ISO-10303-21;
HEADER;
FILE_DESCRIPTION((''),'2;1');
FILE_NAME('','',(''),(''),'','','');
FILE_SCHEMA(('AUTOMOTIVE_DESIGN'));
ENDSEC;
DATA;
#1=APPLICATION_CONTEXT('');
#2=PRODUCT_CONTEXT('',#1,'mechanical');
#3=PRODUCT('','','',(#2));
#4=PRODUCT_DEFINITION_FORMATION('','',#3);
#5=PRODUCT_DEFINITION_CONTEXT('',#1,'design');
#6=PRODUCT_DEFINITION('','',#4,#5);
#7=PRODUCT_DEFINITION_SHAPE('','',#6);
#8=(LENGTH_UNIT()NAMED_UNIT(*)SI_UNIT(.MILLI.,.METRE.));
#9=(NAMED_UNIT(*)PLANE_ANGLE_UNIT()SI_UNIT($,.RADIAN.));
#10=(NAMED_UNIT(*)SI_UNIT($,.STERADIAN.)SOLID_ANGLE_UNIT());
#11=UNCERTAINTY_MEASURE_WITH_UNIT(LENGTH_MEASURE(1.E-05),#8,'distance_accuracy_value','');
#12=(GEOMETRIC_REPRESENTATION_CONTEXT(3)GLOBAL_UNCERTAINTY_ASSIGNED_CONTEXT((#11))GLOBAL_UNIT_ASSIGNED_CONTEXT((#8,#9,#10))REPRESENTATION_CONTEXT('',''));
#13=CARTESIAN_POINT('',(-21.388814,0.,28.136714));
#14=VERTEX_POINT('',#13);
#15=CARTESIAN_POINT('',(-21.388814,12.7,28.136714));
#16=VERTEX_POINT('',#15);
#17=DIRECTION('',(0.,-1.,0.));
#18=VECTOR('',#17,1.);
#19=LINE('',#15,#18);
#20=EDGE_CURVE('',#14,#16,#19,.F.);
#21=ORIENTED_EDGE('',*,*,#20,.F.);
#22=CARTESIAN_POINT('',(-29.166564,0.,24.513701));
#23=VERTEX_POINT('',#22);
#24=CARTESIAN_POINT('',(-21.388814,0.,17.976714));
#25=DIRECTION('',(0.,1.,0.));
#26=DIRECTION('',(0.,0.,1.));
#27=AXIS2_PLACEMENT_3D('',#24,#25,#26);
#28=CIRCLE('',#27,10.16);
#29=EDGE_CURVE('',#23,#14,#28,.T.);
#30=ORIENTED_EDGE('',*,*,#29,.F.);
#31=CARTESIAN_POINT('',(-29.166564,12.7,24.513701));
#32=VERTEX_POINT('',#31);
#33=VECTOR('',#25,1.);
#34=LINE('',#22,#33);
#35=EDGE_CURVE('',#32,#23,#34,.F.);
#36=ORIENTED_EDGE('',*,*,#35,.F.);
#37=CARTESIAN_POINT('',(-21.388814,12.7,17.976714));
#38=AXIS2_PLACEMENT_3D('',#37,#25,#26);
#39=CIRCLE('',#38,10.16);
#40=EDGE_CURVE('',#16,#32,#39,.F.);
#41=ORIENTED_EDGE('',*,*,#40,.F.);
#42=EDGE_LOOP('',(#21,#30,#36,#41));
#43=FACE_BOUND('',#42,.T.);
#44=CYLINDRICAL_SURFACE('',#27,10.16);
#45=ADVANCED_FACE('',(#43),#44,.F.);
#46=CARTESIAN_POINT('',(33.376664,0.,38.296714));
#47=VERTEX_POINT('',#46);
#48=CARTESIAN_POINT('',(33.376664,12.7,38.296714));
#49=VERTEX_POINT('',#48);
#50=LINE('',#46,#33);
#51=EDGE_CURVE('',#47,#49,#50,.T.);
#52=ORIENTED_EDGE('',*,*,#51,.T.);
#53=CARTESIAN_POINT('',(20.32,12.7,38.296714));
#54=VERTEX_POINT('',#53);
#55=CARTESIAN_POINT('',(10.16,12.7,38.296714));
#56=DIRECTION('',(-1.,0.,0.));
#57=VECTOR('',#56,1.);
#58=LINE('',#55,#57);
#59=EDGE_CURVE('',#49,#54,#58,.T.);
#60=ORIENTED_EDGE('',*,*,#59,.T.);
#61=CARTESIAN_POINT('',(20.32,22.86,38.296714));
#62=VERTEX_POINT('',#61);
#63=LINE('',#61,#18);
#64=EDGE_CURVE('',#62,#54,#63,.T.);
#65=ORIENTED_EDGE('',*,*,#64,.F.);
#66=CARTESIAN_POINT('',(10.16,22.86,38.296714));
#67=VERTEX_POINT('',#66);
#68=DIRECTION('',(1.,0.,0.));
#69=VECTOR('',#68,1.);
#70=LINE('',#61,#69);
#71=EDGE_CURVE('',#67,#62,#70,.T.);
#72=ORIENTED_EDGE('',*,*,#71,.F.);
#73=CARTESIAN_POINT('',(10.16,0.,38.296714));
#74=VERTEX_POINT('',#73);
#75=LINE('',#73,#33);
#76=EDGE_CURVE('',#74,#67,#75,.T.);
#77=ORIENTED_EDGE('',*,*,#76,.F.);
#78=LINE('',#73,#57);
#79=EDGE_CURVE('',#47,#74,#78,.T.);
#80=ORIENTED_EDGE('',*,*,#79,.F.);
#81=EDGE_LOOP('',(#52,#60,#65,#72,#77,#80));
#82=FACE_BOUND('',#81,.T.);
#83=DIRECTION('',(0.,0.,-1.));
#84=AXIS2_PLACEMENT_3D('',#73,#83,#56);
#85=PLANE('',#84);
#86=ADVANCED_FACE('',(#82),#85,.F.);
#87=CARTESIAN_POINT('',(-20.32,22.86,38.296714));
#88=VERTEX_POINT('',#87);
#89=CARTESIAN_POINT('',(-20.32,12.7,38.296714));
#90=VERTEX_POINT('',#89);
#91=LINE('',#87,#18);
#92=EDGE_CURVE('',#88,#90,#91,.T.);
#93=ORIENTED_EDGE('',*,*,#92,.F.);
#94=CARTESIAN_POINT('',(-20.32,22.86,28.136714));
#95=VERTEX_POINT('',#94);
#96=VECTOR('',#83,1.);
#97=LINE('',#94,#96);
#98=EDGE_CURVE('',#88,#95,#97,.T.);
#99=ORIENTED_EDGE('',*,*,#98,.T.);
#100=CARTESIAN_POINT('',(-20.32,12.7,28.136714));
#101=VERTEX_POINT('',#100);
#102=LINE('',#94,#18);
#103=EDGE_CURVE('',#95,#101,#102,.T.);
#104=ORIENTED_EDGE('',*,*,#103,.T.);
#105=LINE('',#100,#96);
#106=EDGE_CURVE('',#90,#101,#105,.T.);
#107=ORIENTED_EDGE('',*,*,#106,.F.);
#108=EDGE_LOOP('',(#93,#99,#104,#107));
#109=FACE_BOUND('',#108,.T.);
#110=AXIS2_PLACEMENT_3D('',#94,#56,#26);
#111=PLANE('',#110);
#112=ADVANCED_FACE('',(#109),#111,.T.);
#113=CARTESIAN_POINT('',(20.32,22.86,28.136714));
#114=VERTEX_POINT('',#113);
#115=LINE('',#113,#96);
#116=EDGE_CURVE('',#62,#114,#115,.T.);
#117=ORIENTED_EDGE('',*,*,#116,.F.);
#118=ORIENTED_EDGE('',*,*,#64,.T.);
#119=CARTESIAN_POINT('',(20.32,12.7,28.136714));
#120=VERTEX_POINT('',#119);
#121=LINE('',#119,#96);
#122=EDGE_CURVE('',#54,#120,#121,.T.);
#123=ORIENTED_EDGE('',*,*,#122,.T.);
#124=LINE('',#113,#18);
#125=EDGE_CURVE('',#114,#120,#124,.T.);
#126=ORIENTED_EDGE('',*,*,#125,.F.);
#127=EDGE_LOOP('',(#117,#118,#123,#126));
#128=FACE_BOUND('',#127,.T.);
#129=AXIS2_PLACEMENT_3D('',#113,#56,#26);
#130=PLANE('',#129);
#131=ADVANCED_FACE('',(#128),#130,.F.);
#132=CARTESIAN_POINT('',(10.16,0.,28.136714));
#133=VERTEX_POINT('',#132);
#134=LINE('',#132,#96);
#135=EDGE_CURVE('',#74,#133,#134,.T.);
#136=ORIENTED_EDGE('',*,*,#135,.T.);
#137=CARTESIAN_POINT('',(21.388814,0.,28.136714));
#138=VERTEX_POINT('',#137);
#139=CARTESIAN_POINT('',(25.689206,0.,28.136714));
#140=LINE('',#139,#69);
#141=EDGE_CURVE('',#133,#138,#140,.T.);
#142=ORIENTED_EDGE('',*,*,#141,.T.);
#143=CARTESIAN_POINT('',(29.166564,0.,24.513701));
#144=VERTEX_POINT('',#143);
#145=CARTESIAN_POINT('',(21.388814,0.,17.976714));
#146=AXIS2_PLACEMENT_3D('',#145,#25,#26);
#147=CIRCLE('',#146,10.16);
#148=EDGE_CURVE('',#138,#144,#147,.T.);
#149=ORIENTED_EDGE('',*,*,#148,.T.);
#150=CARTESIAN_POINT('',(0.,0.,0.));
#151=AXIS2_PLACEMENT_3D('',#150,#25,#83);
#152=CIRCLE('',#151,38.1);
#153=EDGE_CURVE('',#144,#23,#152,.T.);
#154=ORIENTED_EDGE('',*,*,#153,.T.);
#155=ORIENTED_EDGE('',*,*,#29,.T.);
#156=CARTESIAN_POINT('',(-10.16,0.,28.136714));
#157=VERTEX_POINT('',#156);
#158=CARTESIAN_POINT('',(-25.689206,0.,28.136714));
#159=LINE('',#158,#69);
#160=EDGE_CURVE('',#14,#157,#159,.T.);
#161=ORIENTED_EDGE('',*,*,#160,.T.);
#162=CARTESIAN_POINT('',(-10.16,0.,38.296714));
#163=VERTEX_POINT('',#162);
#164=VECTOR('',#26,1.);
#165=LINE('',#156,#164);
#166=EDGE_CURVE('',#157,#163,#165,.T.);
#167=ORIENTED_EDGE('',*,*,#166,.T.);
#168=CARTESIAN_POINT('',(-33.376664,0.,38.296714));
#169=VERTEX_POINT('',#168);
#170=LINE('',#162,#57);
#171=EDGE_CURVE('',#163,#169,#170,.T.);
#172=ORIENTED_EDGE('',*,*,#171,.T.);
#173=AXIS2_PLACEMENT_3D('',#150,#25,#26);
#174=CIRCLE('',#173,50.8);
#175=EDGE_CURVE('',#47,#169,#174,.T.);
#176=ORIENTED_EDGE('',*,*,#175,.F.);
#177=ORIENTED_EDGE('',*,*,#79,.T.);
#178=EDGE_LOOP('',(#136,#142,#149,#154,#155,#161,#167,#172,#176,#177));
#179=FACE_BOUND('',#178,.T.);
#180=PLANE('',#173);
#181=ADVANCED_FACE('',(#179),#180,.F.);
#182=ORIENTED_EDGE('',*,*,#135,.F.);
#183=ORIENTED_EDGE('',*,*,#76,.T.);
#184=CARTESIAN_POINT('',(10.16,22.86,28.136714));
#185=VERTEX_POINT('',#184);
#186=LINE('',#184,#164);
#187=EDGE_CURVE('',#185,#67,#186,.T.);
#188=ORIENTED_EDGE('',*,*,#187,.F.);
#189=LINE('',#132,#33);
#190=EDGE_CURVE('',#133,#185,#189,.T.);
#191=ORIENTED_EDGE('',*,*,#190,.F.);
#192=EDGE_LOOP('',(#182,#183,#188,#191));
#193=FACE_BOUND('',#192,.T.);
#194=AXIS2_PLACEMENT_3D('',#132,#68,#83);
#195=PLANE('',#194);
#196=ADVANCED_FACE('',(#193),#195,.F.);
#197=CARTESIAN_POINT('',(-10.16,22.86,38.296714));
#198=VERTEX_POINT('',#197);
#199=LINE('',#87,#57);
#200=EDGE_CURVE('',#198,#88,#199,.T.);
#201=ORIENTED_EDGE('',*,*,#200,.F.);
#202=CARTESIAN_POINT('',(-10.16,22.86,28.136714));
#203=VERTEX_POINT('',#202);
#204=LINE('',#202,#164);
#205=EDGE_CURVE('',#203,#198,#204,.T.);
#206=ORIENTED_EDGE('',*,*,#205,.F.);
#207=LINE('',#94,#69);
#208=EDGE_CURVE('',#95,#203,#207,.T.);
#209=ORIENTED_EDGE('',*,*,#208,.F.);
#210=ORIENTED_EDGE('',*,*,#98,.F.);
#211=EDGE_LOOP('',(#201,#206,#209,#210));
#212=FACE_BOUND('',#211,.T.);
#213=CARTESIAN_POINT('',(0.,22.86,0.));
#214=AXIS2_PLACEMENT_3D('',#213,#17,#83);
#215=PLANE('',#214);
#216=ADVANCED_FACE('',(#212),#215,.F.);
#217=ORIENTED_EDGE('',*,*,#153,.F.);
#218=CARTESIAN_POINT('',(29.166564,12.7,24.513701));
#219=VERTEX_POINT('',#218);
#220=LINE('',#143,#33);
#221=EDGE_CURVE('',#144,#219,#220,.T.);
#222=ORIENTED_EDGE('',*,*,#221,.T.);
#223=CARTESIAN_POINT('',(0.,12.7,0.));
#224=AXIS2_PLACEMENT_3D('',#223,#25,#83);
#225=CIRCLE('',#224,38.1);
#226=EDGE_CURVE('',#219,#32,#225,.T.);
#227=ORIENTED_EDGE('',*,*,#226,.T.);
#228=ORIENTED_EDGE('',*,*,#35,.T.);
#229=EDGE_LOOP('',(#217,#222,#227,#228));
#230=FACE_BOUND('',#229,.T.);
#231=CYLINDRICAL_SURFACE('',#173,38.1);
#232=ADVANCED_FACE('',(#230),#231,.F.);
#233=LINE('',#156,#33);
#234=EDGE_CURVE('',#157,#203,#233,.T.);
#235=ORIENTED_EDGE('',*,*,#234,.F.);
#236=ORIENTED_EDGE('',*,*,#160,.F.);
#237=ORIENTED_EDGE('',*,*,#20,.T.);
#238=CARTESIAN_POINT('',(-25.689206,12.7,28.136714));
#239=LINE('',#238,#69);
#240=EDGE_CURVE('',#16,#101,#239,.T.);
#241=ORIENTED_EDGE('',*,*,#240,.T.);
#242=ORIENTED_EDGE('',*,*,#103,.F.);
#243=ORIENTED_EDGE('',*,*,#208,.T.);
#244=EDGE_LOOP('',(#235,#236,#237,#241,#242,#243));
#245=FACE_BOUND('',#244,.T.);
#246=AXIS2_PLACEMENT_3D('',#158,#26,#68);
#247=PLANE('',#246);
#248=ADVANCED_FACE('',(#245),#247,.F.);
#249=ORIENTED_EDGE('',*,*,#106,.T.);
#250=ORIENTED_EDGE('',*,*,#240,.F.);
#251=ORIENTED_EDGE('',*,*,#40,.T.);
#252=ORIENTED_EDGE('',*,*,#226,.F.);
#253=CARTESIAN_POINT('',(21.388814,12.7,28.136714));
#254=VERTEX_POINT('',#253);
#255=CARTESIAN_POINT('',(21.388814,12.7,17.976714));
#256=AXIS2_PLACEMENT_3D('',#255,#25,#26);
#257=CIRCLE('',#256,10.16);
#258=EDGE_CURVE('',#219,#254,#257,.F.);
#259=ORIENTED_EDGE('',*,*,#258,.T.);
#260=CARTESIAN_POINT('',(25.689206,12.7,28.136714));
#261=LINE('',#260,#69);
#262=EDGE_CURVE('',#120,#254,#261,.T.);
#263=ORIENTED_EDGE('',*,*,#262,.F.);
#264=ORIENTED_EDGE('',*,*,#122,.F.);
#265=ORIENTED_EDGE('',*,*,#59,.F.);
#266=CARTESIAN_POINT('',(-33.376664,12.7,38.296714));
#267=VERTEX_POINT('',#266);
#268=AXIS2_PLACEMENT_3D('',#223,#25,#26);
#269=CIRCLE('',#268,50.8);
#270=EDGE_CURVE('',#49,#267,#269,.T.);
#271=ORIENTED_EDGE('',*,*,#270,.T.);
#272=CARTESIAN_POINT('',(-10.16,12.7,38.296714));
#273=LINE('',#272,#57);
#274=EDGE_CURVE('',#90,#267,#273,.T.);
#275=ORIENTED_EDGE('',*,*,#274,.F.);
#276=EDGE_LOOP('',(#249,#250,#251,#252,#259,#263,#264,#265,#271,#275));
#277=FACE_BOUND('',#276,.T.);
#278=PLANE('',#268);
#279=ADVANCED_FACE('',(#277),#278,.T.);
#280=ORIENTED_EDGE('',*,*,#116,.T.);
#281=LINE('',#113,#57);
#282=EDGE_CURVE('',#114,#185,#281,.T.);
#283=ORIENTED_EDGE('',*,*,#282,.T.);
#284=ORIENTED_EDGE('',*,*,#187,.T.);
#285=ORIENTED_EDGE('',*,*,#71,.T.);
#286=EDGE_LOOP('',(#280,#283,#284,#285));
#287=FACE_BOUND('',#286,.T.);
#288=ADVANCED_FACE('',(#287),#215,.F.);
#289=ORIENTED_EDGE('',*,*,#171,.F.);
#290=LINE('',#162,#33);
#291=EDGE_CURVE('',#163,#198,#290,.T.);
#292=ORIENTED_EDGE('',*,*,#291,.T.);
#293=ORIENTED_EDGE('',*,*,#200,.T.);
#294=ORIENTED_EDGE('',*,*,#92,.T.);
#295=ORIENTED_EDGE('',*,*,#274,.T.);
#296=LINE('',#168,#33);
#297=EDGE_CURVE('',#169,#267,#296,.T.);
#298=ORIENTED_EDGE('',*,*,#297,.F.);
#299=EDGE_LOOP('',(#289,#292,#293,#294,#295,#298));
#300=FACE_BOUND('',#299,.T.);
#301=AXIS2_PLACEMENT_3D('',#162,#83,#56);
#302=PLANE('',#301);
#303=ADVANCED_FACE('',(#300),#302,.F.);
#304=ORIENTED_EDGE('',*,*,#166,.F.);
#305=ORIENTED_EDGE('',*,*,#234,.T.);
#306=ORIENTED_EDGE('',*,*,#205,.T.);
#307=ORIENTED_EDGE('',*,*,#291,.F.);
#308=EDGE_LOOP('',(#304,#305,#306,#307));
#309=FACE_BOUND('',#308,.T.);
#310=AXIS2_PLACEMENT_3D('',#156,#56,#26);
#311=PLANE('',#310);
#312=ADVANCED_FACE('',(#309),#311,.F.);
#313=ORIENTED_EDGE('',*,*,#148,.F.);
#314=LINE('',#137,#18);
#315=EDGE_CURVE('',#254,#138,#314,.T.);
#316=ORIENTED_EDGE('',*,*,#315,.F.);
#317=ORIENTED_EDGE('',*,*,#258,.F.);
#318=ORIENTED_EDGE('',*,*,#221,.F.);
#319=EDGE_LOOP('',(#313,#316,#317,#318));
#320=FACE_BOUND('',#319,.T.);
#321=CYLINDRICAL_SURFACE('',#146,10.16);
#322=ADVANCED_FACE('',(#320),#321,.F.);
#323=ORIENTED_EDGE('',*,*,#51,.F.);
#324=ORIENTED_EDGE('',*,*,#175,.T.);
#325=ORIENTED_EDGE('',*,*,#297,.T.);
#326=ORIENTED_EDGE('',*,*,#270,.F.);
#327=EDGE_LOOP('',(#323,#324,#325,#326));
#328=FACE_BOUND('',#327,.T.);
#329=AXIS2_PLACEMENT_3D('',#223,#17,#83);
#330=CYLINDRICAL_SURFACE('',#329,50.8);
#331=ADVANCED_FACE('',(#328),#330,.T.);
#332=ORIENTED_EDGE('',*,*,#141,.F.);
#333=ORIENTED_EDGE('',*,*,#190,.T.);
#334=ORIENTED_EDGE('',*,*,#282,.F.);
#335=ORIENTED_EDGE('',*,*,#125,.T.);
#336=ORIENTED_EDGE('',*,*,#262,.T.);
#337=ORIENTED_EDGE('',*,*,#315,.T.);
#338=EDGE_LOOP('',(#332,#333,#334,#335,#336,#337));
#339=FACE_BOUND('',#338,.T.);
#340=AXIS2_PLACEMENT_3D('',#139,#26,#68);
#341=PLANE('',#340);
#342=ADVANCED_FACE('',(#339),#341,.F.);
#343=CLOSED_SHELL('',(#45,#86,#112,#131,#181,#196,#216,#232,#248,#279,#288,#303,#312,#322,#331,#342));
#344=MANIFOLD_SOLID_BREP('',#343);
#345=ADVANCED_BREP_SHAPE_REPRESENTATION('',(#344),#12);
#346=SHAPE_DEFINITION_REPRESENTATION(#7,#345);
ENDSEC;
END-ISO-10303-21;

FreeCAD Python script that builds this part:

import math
import FreeCAD as App
import Part
import Sketcher
Q = App.Units.Quantity


def edges_at(feature, points):
    """Names of the edges that pass closest to the given points."""
    edges = feature.Shape.Edges
    near = lambda p: min(range(len(edges)), key=lambda i: edges[i].distToShape(Part.Vertex(*p))[0])
    return sorted({f"Edge{near(p) + 1}" for p in points})

doc = App.newDocument("Part")
params = doc.addObject("Spreadsheet::Sheet", "Params")
for row, (alias, value) in enumerate([
    ("sketch1_diameter", "4 in"),
    ("pad1_length", "0.5 in"),
    ("sketch2_radius", "2 in"),
    ("sketch2_radius2", "1.5 in"),
    ("sketch2_height", "0.4 in"),
    ("pocket1_length", "0.5 in"),
    ("sketch3_width", "0.4 in"),
    ("pad2_length", "0.4 in"),
    ("fillet_radius", "0.4 in"),
    ("fillet2_radius", "0.4 in"),
], start=1):
    params.set(f"A{row}", alias)
    params.set(f"B{row}", "=" + value)
    params.setAlias(f"B{row}", alias)

body = doc.addObject("PartDesign::Body", "Body")

sketch1 = body.newObject("Sketcher::SketchObject", "Sketch")
sketch1.AttachmentSupport = (doc.getObject("XZ_Plane"), [""])
sketch1.MapMode = "FlatFace"
sketch1.addGeometry(Part.Circle(App.Vector(0, 0, 0), App.Vector(0, 0, 1), 51), False)
sketch1.addConstraint([
    Sketcher.Constraint("Coincident", 0, 3, -1, 1),
    Sketcher.Constraint("Diameter", 0, Q("4 in")),
])
sketch1.setExpression("Constraints[1]", "Params.sketch1_diameter")
pad1 = body.newObject("PartDesign::Pad", "Pad")
pad1.Profile = sketch1
pad1.setExpression("Length", "Params.pad1_length")
pad1.Reversed = True

sketch2 = body.newObject("Sketcher::SketchObject", "Sketch001")
sketch2.AttachmentSupport = (doc.getObject("XZ_Plane"), [""])
sketch2.MapMode = "FlatFace"
sketch2.AttachmentOffset = App.Placement(App.Vector(0, 0, -0.5 * 25.4), App.Rotation())
sketch2.addGeometry([
    Part.LineSegment(App.Vector(-26, 28, 0), App.Vector(-10, 28, 0)),
    Part.LineSegment(App.Vector(-10, 28, 0), App.Vector(-10, 38, 0)),
    Part.LineSegment(App.Vector(-10, 38, 0), App.Vector(-33, 38, 0)),
    Part.ArcOfCircle(Part.Circle(App.Vector(0, 0, 0), App.Vector(0, 0, 1), 51), math.radians(49), math.radians(131)),
    Part.LineSegment(App.Vector(33, 38, 0), App.Vector(10, 38, 0)),
    Part.LineSegment(App.Vector(10, 38, 0), App.Vector(10, 28, 0)),
    Part.LineSegment(App.Vector(10, 28, 0), App.Vector(26, 28, 0)),
    Part.ArcOfCircle(Part.Circle(App.Vector(0, 0, 0), App.Vector(0, 0, 1), 38), math.radians(132), math.radians(408)),
], False)
sketch2.addConstraint([
    Sketcher.Constraint("Coincident", 0, 2, 1, 1),
    Sketcher.Constraint("Coincident", 1, 2, 2, 1),
    Sketcher.Constraint("Coincident", 2, 2, 3, 2),
    Sketcher.Constraint("Coincident", 3, 1, 4, 1),
    Sketcher.Constraint("Coincident", 4, 2, 5, 1),
    Sketcher.Constraint("Coincident", 5, 2, 6, 1),
    Sketcher.Constraint("Coincident", 6, 2, 7, 2),
    Sketcher.Constraint("Coincident", 7, 1, 0, 1),
    Sketcher.Constraint("Horizontal", 0),
    Sketcher.Constraint("Vertical", 1),
    Sketcher.Constraint("Horizontal", 2),
    Sketcher.Constraint("Horizontal", 4),
    Sketcher.Constraint("Vertical", 5),
    Sketcher.Constraint("Horizontal", 6),
    Sketcher.Constraint("Coincident", 3, 3, -1, 1),
    Sketcher.Constraint("Coincident", 7, 3, -1, 1),
    Sketcher.Constraint("Symmetric", 1, 2, 4, 2, -2),
    Sketcher.Constraint("Horizontal", 0, 2, 5, 2),
    Sketcher.Constraint("Radius", 3, Q("2 in")),
    Sketcher.Constraint("Radius", 7, Q("1.5 in")),
    Sketcher.Constraint("DistanceY", 1, 1, 1, 2, Q("0.4 in")),
    Sketcher.Constraint("DistanceX", 0, 2, -1, 1, Q("0.4 in")),
    Sketcher.Constraint("DistanceX", 0, 1, 0, 2, 15.529206),
])
sketch2.setExpression("Constraints[18]", "Params.sketch2_radius")
sketch2.setExpression("Constraints[19]", "Params.sketch2_radius2")
sketch2.setExpression("Constraints[20]", "Params.sketch2_height")
pocket1 = body.newObject("PartDesign::Pocket", "Pocket")
pocket1.Profile = sketch2
pocket1.setExpression("Length", "Params.pocket1_length")
pocket1.Reversed = True

sketch3 = body.newObject("Sketcher::SketchObject", "Sketch002")
sketch3.AttachmentSupport = (doc.getObject("XZ_Plane"), [""])
sketch3.MapMode = "FlatFace"
sketch3.AttachmentOffset = App.Placement(App.Vector(0, 0, -0.5 * 25.4), App.Rotation())
sketch3.addGeometry([
    Part.LineSegment(App.Vector(-10, 38, 0), App.Vector(-20, 38, 0)),
    Part.LineSegment(App.Vector(-20, 38, 0), App.Vector(-20, 28, 0)),
    Part.LineSegment(App.Vector(-20, 28, 0), App.Vector(-10, 28, 0)),
    Part.LineSegment(App.Vector(-10, 28, 0), App.Vector(-10, 38, 0)),
], False)
sketch3.addConstraint([
    Sketcher.Constraint("Coincident", 0, 2, 1, 1),
    Sketcher.Constraint("Coincident", 1, 2, 2, 1),
    Sketcher.Constraint("Coincident", 2, 2, 3, 1),
    Sketcher.Constraint("Coincident", 3, 2, 0, 1),
    Sketcher.Constraint("Horizontal", 0),
    Sketcher.Constraint("Vertical", 1),
    Sketcher.Constraint("Horizontal", 2),
    Sketcher.Constraint("Vertical", 3),
    Sketcher.Constraint("Equal", 2, 1),
    Sketcher.Constraint("DistanceX", 0, 2, 0, 1, Q("0.4 in")),
    Sketcher.Constraint("DistanceX", 0, 2, -1, 1, Q("0.8 in")),
    Sketcher.Constraint("DistanceY", -1, 1, 0, 2, 38.296714),
])
sketch3.setExpression("Constraints[9]", "Params.sketch3_width")
pad2 = body.newObject("PartDesign::Pad", "Pad001")
pad2.Profile = sketch3
pad2.setExpression("Length", "Params.pad2_length")
pad2.Reversed = True
doc.recompute()

fillet = body.newObject("PartDesign::Fillet", "Fillet")
fillet.Base = (pad2, edges_at(pad2, [(-25.689, 6.35, 28.137)]))
fillet.setExpression("Radius", "Params.fillet_radius")
doc.recompute()

mirrored = body.newObject("PartDesign::Mirrored", "Mirrored")
mirrored.Originals = [pad2]
mirrored.MirrorPlane = (doc.getObject("YZ_Plane"), [""])
body.Tip = mirrored
doc.recompute()

fillet2 = body.newObject("PartDesign::Fillet", "Fillet001")
fillet2.Base = (mirrored, edges_at(mirrored, [(25.689, 6.35, 28.137)]))
fillet2.setExpression("Radius", "Params.fillet2_radius")

doc.recompute()
